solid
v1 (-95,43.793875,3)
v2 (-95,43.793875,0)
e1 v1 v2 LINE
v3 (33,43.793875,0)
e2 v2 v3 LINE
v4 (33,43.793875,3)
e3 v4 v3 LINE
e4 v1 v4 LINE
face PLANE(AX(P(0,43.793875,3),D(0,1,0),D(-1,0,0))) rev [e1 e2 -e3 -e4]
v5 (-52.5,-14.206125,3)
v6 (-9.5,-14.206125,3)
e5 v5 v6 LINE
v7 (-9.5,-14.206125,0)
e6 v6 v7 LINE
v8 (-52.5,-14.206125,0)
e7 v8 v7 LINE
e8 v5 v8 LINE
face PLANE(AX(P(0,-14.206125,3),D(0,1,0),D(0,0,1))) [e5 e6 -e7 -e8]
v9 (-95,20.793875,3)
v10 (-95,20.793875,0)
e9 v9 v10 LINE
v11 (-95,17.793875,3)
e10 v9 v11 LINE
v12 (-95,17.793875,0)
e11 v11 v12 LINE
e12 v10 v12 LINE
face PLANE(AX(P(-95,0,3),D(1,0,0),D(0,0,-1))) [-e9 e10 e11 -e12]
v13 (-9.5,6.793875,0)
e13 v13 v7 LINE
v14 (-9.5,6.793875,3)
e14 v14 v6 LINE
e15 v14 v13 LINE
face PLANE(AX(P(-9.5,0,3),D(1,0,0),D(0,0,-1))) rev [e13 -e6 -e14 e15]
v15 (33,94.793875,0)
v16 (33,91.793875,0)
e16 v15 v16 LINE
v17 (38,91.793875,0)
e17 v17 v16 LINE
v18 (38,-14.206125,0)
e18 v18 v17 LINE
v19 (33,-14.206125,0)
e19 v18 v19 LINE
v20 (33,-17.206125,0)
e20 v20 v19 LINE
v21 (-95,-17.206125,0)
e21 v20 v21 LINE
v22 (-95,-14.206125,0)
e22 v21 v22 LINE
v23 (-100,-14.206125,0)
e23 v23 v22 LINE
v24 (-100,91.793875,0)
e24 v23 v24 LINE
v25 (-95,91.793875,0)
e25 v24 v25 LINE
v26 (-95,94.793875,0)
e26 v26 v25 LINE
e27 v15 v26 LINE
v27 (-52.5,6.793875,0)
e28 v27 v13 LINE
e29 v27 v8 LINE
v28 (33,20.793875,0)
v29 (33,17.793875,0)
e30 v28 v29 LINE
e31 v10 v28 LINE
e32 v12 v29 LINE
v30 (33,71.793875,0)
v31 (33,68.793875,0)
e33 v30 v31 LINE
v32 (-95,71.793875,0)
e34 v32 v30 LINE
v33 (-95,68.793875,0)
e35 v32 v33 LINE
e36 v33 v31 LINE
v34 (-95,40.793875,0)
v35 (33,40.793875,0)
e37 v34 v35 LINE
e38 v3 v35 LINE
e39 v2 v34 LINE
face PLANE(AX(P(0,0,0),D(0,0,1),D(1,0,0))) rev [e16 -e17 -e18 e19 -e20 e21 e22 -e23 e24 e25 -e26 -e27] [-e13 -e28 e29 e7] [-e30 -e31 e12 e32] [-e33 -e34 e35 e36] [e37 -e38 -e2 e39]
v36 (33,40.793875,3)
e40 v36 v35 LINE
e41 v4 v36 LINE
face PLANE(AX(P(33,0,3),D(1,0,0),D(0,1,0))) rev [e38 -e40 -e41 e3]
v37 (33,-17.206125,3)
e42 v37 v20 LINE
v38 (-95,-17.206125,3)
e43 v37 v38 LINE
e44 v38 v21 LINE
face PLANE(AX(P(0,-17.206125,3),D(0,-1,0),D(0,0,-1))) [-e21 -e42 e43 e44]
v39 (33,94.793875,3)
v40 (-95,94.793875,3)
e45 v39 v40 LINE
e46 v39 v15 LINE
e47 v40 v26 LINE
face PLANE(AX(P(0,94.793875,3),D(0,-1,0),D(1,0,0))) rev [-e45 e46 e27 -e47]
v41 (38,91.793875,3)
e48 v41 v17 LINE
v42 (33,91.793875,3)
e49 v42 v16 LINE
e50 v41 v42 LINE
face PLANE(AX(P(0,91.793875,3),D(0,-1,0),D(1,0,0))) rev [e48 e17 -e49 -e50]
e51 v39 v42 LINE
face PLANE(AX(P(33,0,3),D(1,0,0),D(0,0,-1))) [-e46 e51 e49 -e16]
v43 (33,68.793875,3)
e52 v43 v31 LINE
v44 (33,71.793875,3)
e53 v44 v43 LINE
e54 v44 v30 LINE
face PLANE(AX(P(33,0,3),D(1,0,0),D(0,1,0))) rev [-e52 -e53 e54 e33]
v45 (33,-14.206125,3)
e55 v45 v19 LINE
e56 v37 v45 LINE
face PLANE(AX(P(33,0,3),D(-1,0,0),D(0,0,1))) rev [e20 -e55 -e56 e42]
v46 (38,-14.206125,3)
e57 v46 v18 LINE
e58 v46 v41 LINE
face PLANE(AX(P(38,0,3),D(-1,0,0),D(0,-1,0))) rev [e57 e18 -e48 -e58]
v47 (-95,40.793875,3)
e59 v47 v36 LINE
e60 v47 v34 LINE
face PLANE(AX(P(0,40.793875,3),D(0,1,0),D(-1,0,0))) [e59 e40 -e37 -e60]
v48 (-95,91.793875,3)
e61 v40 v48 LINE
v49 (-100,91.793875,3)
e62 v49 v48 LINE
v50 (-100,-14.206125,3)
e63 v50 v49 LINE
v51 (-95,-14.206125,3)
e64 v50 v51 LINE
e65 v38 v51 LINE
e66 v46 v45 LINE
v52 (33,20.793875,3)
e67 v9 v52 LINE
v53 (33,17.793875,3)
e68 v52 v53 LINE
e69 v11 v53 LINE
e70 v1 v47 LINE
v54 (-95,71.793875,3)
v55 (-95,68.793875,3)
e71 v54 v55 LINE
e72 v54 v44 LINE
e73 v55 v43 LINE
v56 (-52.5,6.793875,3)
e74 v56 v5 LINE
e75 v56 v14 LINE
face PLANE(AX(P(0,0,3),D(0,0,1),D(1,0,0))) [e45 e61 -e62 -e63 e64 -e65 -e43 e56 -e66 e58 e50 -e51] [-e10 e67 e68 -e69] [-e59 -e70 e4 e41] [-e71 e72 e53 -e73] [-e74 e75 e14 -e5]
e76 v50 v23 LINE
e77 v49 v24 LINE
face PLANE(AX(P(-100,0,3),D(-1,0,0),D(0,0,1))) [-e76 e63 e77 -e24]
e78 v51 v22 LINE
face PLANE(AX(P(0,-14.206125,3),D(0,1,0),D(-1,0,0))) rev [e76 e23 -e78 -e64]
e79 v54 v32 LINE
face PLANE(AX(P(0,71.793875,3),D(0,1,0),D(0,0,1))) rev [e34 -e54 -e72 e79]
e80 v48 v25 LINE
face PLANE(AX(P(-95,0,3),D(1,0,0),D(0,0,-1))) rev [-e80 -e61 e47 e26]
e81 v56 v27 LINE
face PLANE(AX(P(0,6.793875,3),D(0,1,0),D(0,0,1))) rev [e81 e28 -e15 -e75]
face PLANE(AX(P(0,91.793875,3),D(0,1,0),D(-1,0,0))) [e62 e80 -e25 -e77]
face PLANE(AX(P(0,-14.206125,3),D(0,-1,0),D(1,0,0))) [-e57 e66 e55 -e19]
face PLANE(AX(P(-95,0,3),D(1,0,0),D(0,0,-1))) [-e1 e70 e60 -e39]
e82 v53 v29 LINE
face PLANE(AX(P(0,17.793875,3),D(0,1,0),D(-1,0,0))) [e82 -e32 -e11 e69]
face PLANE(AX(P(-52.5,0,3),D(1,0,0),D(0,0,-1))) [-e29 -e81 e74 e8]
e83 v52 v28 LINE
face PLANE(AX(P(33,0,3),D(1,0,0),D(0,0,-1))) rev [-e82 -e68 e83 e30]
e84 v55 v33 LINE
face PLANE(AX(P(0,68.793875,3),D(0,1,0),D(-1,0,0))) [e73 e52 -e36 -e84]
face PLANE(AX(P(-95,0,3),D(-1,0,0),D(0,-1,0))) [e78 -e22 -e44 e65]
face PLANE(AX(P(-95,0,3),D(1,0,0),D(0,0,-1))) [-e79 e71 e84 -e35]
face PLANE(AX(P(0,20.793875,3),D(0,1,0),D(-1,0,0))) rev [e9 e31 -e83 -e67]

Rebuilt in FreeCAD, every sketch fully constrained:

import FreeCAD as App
import Part
import Sketcher
from FreeCAD import Vector

doc = App.newDocument("Part")
body = doc.addObject("PartDesign::Body", "Body")

# Sketch on XY plane
sketch1 = doc.addObject("Sketcher::SketchObject", "Sketch")
body.addObject(sketch1)
sketch1.AttachmentSupport = (doc.XY_Plane, [""])
sketch1.MapMode = "FlatFace"
sketch1.addGeometry([
    Part.LineSegment(Vector(-95, -17.206125, 0), Vector(33, -17.206125, 0)),  # 0
    Part.LineSegment(Vector(33, -17.206125, 0), Vector(33, -14.206125, 0)),  # 1
    Part.LineSegment(Vector(33, -14.206125, 0), Vector(38, -14.206125, 0)),  # 2
    Part.LineSegment(Vector(38, -14.206125, 0), Vector(38, 91.793875, 0)),  # 3
    Part.LineSegment(Vector(38, 91.793875, 0), Vector(33, 91.793875, 0)),  # 4
    Part.LineSegment(Vector(33, 91.793875, 0), Vector(33, 94.793875, 0)),  # 5
    Part.LineSegment(Vector(33, 94.793875, 0), Vector(-95, 94.793875, 0)),  # 6
    Part.LineSegment(Vector(-95, 94.793875, 0), Vector(-95, 91.793875, 0)),  # 7
    Part.LineSegment(Vector(-95, 91.793875, 0), Vector(-100, 91.793875, 0)),  # 8
    Part.LineSegment(Vector(-100, 91.793875, 0), Vector(-100, -14.206125, 0)),  # 9
    Part.LineSegment(Vector(-100, -14.206125, 0), Vector(-95, -14.206125, 0)),  # 10
    Part.LineSegment(Vector(-95, -14.206125, 0), Vector(-95, -17.206125, 0)),  # 11
    Part.LineSegment(Vector(-9.5, -14.206125, 0), Vector(-52.5, -14.206125, 0)),  # 12
    Part.LineSegment(Vector(-52.5, -14.206125, 0), Vector(-52.5, 6.793875, 0)),  # 13
    Part.LineSegment(Vector(-52.5, 6.793875, 0), Vector(-9.5, 6.793875, 0)),  # 14
    Part.LineSegment(Vector(-9.5, 6.793875, 0), Vector(-9.5, -14.206125, 0)),  # 15
    Part.LineSegment(Vector(33, 17.793875, 0), Vector(-95, 17.793875, 0)),  # 16
    Part.LineSegment(Vector(-95, 17.793875, 0), Vector(-95, 20.793875, 0)),  # 17
    Part.LineSegment(Vector(-95, 20.793875, 0), Vector(33, 20.793875, 0)),  # 18
    Part.LineSegment(Vector(33, 20.793875, 0), Vector(33, 17.793875, 0)),  # 19
    Part.LineSegment(Vector(33, 40.793875, 0), Vector(-95, 40.793875, 0)),  # 20
    Part.LineSegment(Vector(-95, 40.793875, 0), Vector(-95, 43.793875, 0)),  # 21
    Part.LineSegment(Vector(-95, 43.793875, 0), Vector(33, 43.793875, 0)),  # 22
    Part.LineSegment(Vector(33, 43.793875, 0), Vector(33, 40.793875, 0)),  # 23
    Part.LineSegment(Vector(33, 68.793875, 0), Vector(-95, 68.793875, 0)),  # 24
    Part.LineSegment(Vector(-95, 68.793875, 0), Vector(-95, 71.793875, 0)),  # 25
    Part.LineSegment(Vector(-95, 71.793875, 0), Vector(33, 71.793875, 0)),  # 26
    Part.LineSegment(Vector(33, 71.793875, 0), Vector(33, 68.793875, 0)),  # 27
], False)
sketch1.addConstraint([
    Sketcher.Constraint("Coincident", 0, 2, 1, 1),
    Sketcher.Constraint("Coincident", 1, 2, 2, 1),
    Sketcher.Constraint("Coincident", 2, 2, 3, 1),
    Sketcher.Constraint("Coincident", 3, 2, 4, 1),
    Sketcher.Constraint("Coincident", 4, 2, 5, 1),
    Sketcher.Constraint("Coincident", 5, 2, 6, 1),
    Sketcher.Constraint("Coincident", 6, 2, 7, 1),
    Sketcher.Constraint("Coincident", 7, 2, 8, 1),
    Sketcher.Constraint("Coincident", 8, 2, 9, 1),
    Sketcher.Constraint("Coincident", 9, 2, 10, 1),
    Sketcher.Constraint("Coincident", 10, 2, 11, 1),
    Sketcher.Constraint("Coincident", 11, 2, 0, 1),
    Sketcher.Constraint("Coincident", 12, 2, 13, 1),
    Sketcher.Constraint("Coincident", 13, 2, 14, 1),
    Sketcher.Constraint("Coincident", 14, 2, 15, 1),
    Sketcher.Constraint("Coincident", 15, 2, 12, 1),
    Sketcher.Constraint("Coincident", 16, 2, 17, 1),
    Sketcher.Constraint("Coincident", 17, 2, 18, 1),
    Sketcher.Constraint("Coincident", 18, 2, 19, 1),
    Sketcher.Constraint("Coincident", 19, 2, 16, 1),
    Sketcher.Constraint("Coincident", 20, 2, 21, 1),
    Sketcher.Constraint("Coincident", 21, 2, 22, 1),
    Sketcher.Constraint("Coincident", 22, 2, 23, 1),
    Sketcher.Constraint("Coincident", 23, 2, 20, 1),
    Sketcher.Constraint("Coincident", 24, 2, 25, 1),
    Sketcher.Constraint("Coincident", 25, 2, 26, 1),
    Sketcher.Constraint("Coincident", 26, 2, 27, 1),
    Sketcher.Constraint("Coincident", 27, 2, 24, 1),
    Sketcher.Constraint("Horizontal", 0),
    Sketcher.Constraint("Vertical", 1),
    Sketcher.Constraint("Horizontal", 2),
    Sketcher.Constraint("Vertical", 3),
    Sketcher.Constraint("Horizontal", 4),
    Sketcher.Constraint("Vertical", 5),
    Sketcher.Constraint("Horizontal", 6),
    Sketcher.Constraint("Vertical", 7),
    Sketcher.Constraint("Horizontal", 8),
    Sketcher.Constraint("Vertical", 9),
    Sketcher.Constraint("Horizontal", 10),
    Sketcher.Constraint("Vertical", 11),
    Sketcher.Constraint("Horizontal", 12),
    Sketcher.Constraint("Vertical", 13),
    Sketcher.Constraint("Horizontal", 14),
    Sketcher.Constraint("Vertical", 15),
    Sketcher.Constraint("Horizontal", 16),
    Sketcher.Constraint("Vertical", 17),
    Sketcher.Constraint("Horizontal", 18),
    Sketcher.Constraint("Vertical", 19),
    Sketcher.Constraint("Horizontal", 20),
    Sketcher.Constraint("Vertical", 21),
    Sketcher.Constraint("Horizontal", 22),
    Sketcher.Constraint("Vertical", 23),
    Sketcher.Constraint("Horizontal", 24),
    Sketcher.Constraint("Vertical", 25),
    Sketcher.Constraint("Horizontal", 26),
    Sketcher.Constraint("Vertical", 27),
    Sketcher.Constraint("Horizontal", 4, 2, 7, 2),
    Sketcher.Constraint("Horizontal", 2, 2, 9, 2),
    Sketcher.Constraint("Horizontal", 10, 2, 12, 2),
    Sketcher.Constraint("Vertical", 1, 2, 4, 2),
    Sketcher.Constraint("Vertical", 7, 2, 10, 2),
    Sketcher.Constraint("Vertical", 11, 2, 16, 2),
    Sketcher.Constraint("Vertical", 5, 2, 18, 2),
    Sketcher.Constraint("Vertical", 17, 2, 20, 2),
    Sketcher.Constraint("Vertical", 19, 2, 22, 2),
    Sketcher.Constraint("Vertical", 21, 2, 24, 2),
    Sketcher.Constraint("Vertical", 23, 2, 26, 2),
    Sketcher.Constraint("Equal", 4, 8),
    Sketcher.Constraint("Equal", 1, 5),
    Sketcher.Constraint("Equal", 11, 17),
    Sketcher.Constraint("Equal", 19, 21),
    Sketcher.Constraint("Equal", 23, 25),
    Sketcher.Constraint("DistanceX", 0, 1, 0, 2, 128.0),
    Sketcher.Constraint("DistanceX", 2, 1, 2, 2, 5.0),
    Sketcher.Constraint("DistanceX", 12, 2, 12, 1, 43.0),
    Sketcher.Constraint("DistanceY", 1, 1, 1, 2, 3.0),
    Sketcher.Constraint("DistanceY", 3, 1, 3, 2, 106.0),
    Sketcher.Constraint("DistanceY", 13, 1, 13, 2, 21.0),
    Sketcher.Constraint("DistanceX", -1, 1, 0, 2, 33.0),
    Sketcher.Constraint("DistanceY", 10, 2, 16, 2, 32.0),
    Sketcher.Constraint("DistanceY", 17, 2, 20, 2, 20.0),
    Sketcher.Constraint("DistanceY", 24, 2, 7, 2, 23.0),
    Sketcher.Constraint("DistanceX", 12, 2, -1, 1, 52.5),
    Sketcher.Constraint("DistanceY", 0, 2, -1, 1, 17.206125),
])
pad1 = doc.addObject("PartDesign::Pad", "Pad")
body.addObject(pad1)
pad1.Profile = sketch1
pad1.Length = 3

doc.recompute()
